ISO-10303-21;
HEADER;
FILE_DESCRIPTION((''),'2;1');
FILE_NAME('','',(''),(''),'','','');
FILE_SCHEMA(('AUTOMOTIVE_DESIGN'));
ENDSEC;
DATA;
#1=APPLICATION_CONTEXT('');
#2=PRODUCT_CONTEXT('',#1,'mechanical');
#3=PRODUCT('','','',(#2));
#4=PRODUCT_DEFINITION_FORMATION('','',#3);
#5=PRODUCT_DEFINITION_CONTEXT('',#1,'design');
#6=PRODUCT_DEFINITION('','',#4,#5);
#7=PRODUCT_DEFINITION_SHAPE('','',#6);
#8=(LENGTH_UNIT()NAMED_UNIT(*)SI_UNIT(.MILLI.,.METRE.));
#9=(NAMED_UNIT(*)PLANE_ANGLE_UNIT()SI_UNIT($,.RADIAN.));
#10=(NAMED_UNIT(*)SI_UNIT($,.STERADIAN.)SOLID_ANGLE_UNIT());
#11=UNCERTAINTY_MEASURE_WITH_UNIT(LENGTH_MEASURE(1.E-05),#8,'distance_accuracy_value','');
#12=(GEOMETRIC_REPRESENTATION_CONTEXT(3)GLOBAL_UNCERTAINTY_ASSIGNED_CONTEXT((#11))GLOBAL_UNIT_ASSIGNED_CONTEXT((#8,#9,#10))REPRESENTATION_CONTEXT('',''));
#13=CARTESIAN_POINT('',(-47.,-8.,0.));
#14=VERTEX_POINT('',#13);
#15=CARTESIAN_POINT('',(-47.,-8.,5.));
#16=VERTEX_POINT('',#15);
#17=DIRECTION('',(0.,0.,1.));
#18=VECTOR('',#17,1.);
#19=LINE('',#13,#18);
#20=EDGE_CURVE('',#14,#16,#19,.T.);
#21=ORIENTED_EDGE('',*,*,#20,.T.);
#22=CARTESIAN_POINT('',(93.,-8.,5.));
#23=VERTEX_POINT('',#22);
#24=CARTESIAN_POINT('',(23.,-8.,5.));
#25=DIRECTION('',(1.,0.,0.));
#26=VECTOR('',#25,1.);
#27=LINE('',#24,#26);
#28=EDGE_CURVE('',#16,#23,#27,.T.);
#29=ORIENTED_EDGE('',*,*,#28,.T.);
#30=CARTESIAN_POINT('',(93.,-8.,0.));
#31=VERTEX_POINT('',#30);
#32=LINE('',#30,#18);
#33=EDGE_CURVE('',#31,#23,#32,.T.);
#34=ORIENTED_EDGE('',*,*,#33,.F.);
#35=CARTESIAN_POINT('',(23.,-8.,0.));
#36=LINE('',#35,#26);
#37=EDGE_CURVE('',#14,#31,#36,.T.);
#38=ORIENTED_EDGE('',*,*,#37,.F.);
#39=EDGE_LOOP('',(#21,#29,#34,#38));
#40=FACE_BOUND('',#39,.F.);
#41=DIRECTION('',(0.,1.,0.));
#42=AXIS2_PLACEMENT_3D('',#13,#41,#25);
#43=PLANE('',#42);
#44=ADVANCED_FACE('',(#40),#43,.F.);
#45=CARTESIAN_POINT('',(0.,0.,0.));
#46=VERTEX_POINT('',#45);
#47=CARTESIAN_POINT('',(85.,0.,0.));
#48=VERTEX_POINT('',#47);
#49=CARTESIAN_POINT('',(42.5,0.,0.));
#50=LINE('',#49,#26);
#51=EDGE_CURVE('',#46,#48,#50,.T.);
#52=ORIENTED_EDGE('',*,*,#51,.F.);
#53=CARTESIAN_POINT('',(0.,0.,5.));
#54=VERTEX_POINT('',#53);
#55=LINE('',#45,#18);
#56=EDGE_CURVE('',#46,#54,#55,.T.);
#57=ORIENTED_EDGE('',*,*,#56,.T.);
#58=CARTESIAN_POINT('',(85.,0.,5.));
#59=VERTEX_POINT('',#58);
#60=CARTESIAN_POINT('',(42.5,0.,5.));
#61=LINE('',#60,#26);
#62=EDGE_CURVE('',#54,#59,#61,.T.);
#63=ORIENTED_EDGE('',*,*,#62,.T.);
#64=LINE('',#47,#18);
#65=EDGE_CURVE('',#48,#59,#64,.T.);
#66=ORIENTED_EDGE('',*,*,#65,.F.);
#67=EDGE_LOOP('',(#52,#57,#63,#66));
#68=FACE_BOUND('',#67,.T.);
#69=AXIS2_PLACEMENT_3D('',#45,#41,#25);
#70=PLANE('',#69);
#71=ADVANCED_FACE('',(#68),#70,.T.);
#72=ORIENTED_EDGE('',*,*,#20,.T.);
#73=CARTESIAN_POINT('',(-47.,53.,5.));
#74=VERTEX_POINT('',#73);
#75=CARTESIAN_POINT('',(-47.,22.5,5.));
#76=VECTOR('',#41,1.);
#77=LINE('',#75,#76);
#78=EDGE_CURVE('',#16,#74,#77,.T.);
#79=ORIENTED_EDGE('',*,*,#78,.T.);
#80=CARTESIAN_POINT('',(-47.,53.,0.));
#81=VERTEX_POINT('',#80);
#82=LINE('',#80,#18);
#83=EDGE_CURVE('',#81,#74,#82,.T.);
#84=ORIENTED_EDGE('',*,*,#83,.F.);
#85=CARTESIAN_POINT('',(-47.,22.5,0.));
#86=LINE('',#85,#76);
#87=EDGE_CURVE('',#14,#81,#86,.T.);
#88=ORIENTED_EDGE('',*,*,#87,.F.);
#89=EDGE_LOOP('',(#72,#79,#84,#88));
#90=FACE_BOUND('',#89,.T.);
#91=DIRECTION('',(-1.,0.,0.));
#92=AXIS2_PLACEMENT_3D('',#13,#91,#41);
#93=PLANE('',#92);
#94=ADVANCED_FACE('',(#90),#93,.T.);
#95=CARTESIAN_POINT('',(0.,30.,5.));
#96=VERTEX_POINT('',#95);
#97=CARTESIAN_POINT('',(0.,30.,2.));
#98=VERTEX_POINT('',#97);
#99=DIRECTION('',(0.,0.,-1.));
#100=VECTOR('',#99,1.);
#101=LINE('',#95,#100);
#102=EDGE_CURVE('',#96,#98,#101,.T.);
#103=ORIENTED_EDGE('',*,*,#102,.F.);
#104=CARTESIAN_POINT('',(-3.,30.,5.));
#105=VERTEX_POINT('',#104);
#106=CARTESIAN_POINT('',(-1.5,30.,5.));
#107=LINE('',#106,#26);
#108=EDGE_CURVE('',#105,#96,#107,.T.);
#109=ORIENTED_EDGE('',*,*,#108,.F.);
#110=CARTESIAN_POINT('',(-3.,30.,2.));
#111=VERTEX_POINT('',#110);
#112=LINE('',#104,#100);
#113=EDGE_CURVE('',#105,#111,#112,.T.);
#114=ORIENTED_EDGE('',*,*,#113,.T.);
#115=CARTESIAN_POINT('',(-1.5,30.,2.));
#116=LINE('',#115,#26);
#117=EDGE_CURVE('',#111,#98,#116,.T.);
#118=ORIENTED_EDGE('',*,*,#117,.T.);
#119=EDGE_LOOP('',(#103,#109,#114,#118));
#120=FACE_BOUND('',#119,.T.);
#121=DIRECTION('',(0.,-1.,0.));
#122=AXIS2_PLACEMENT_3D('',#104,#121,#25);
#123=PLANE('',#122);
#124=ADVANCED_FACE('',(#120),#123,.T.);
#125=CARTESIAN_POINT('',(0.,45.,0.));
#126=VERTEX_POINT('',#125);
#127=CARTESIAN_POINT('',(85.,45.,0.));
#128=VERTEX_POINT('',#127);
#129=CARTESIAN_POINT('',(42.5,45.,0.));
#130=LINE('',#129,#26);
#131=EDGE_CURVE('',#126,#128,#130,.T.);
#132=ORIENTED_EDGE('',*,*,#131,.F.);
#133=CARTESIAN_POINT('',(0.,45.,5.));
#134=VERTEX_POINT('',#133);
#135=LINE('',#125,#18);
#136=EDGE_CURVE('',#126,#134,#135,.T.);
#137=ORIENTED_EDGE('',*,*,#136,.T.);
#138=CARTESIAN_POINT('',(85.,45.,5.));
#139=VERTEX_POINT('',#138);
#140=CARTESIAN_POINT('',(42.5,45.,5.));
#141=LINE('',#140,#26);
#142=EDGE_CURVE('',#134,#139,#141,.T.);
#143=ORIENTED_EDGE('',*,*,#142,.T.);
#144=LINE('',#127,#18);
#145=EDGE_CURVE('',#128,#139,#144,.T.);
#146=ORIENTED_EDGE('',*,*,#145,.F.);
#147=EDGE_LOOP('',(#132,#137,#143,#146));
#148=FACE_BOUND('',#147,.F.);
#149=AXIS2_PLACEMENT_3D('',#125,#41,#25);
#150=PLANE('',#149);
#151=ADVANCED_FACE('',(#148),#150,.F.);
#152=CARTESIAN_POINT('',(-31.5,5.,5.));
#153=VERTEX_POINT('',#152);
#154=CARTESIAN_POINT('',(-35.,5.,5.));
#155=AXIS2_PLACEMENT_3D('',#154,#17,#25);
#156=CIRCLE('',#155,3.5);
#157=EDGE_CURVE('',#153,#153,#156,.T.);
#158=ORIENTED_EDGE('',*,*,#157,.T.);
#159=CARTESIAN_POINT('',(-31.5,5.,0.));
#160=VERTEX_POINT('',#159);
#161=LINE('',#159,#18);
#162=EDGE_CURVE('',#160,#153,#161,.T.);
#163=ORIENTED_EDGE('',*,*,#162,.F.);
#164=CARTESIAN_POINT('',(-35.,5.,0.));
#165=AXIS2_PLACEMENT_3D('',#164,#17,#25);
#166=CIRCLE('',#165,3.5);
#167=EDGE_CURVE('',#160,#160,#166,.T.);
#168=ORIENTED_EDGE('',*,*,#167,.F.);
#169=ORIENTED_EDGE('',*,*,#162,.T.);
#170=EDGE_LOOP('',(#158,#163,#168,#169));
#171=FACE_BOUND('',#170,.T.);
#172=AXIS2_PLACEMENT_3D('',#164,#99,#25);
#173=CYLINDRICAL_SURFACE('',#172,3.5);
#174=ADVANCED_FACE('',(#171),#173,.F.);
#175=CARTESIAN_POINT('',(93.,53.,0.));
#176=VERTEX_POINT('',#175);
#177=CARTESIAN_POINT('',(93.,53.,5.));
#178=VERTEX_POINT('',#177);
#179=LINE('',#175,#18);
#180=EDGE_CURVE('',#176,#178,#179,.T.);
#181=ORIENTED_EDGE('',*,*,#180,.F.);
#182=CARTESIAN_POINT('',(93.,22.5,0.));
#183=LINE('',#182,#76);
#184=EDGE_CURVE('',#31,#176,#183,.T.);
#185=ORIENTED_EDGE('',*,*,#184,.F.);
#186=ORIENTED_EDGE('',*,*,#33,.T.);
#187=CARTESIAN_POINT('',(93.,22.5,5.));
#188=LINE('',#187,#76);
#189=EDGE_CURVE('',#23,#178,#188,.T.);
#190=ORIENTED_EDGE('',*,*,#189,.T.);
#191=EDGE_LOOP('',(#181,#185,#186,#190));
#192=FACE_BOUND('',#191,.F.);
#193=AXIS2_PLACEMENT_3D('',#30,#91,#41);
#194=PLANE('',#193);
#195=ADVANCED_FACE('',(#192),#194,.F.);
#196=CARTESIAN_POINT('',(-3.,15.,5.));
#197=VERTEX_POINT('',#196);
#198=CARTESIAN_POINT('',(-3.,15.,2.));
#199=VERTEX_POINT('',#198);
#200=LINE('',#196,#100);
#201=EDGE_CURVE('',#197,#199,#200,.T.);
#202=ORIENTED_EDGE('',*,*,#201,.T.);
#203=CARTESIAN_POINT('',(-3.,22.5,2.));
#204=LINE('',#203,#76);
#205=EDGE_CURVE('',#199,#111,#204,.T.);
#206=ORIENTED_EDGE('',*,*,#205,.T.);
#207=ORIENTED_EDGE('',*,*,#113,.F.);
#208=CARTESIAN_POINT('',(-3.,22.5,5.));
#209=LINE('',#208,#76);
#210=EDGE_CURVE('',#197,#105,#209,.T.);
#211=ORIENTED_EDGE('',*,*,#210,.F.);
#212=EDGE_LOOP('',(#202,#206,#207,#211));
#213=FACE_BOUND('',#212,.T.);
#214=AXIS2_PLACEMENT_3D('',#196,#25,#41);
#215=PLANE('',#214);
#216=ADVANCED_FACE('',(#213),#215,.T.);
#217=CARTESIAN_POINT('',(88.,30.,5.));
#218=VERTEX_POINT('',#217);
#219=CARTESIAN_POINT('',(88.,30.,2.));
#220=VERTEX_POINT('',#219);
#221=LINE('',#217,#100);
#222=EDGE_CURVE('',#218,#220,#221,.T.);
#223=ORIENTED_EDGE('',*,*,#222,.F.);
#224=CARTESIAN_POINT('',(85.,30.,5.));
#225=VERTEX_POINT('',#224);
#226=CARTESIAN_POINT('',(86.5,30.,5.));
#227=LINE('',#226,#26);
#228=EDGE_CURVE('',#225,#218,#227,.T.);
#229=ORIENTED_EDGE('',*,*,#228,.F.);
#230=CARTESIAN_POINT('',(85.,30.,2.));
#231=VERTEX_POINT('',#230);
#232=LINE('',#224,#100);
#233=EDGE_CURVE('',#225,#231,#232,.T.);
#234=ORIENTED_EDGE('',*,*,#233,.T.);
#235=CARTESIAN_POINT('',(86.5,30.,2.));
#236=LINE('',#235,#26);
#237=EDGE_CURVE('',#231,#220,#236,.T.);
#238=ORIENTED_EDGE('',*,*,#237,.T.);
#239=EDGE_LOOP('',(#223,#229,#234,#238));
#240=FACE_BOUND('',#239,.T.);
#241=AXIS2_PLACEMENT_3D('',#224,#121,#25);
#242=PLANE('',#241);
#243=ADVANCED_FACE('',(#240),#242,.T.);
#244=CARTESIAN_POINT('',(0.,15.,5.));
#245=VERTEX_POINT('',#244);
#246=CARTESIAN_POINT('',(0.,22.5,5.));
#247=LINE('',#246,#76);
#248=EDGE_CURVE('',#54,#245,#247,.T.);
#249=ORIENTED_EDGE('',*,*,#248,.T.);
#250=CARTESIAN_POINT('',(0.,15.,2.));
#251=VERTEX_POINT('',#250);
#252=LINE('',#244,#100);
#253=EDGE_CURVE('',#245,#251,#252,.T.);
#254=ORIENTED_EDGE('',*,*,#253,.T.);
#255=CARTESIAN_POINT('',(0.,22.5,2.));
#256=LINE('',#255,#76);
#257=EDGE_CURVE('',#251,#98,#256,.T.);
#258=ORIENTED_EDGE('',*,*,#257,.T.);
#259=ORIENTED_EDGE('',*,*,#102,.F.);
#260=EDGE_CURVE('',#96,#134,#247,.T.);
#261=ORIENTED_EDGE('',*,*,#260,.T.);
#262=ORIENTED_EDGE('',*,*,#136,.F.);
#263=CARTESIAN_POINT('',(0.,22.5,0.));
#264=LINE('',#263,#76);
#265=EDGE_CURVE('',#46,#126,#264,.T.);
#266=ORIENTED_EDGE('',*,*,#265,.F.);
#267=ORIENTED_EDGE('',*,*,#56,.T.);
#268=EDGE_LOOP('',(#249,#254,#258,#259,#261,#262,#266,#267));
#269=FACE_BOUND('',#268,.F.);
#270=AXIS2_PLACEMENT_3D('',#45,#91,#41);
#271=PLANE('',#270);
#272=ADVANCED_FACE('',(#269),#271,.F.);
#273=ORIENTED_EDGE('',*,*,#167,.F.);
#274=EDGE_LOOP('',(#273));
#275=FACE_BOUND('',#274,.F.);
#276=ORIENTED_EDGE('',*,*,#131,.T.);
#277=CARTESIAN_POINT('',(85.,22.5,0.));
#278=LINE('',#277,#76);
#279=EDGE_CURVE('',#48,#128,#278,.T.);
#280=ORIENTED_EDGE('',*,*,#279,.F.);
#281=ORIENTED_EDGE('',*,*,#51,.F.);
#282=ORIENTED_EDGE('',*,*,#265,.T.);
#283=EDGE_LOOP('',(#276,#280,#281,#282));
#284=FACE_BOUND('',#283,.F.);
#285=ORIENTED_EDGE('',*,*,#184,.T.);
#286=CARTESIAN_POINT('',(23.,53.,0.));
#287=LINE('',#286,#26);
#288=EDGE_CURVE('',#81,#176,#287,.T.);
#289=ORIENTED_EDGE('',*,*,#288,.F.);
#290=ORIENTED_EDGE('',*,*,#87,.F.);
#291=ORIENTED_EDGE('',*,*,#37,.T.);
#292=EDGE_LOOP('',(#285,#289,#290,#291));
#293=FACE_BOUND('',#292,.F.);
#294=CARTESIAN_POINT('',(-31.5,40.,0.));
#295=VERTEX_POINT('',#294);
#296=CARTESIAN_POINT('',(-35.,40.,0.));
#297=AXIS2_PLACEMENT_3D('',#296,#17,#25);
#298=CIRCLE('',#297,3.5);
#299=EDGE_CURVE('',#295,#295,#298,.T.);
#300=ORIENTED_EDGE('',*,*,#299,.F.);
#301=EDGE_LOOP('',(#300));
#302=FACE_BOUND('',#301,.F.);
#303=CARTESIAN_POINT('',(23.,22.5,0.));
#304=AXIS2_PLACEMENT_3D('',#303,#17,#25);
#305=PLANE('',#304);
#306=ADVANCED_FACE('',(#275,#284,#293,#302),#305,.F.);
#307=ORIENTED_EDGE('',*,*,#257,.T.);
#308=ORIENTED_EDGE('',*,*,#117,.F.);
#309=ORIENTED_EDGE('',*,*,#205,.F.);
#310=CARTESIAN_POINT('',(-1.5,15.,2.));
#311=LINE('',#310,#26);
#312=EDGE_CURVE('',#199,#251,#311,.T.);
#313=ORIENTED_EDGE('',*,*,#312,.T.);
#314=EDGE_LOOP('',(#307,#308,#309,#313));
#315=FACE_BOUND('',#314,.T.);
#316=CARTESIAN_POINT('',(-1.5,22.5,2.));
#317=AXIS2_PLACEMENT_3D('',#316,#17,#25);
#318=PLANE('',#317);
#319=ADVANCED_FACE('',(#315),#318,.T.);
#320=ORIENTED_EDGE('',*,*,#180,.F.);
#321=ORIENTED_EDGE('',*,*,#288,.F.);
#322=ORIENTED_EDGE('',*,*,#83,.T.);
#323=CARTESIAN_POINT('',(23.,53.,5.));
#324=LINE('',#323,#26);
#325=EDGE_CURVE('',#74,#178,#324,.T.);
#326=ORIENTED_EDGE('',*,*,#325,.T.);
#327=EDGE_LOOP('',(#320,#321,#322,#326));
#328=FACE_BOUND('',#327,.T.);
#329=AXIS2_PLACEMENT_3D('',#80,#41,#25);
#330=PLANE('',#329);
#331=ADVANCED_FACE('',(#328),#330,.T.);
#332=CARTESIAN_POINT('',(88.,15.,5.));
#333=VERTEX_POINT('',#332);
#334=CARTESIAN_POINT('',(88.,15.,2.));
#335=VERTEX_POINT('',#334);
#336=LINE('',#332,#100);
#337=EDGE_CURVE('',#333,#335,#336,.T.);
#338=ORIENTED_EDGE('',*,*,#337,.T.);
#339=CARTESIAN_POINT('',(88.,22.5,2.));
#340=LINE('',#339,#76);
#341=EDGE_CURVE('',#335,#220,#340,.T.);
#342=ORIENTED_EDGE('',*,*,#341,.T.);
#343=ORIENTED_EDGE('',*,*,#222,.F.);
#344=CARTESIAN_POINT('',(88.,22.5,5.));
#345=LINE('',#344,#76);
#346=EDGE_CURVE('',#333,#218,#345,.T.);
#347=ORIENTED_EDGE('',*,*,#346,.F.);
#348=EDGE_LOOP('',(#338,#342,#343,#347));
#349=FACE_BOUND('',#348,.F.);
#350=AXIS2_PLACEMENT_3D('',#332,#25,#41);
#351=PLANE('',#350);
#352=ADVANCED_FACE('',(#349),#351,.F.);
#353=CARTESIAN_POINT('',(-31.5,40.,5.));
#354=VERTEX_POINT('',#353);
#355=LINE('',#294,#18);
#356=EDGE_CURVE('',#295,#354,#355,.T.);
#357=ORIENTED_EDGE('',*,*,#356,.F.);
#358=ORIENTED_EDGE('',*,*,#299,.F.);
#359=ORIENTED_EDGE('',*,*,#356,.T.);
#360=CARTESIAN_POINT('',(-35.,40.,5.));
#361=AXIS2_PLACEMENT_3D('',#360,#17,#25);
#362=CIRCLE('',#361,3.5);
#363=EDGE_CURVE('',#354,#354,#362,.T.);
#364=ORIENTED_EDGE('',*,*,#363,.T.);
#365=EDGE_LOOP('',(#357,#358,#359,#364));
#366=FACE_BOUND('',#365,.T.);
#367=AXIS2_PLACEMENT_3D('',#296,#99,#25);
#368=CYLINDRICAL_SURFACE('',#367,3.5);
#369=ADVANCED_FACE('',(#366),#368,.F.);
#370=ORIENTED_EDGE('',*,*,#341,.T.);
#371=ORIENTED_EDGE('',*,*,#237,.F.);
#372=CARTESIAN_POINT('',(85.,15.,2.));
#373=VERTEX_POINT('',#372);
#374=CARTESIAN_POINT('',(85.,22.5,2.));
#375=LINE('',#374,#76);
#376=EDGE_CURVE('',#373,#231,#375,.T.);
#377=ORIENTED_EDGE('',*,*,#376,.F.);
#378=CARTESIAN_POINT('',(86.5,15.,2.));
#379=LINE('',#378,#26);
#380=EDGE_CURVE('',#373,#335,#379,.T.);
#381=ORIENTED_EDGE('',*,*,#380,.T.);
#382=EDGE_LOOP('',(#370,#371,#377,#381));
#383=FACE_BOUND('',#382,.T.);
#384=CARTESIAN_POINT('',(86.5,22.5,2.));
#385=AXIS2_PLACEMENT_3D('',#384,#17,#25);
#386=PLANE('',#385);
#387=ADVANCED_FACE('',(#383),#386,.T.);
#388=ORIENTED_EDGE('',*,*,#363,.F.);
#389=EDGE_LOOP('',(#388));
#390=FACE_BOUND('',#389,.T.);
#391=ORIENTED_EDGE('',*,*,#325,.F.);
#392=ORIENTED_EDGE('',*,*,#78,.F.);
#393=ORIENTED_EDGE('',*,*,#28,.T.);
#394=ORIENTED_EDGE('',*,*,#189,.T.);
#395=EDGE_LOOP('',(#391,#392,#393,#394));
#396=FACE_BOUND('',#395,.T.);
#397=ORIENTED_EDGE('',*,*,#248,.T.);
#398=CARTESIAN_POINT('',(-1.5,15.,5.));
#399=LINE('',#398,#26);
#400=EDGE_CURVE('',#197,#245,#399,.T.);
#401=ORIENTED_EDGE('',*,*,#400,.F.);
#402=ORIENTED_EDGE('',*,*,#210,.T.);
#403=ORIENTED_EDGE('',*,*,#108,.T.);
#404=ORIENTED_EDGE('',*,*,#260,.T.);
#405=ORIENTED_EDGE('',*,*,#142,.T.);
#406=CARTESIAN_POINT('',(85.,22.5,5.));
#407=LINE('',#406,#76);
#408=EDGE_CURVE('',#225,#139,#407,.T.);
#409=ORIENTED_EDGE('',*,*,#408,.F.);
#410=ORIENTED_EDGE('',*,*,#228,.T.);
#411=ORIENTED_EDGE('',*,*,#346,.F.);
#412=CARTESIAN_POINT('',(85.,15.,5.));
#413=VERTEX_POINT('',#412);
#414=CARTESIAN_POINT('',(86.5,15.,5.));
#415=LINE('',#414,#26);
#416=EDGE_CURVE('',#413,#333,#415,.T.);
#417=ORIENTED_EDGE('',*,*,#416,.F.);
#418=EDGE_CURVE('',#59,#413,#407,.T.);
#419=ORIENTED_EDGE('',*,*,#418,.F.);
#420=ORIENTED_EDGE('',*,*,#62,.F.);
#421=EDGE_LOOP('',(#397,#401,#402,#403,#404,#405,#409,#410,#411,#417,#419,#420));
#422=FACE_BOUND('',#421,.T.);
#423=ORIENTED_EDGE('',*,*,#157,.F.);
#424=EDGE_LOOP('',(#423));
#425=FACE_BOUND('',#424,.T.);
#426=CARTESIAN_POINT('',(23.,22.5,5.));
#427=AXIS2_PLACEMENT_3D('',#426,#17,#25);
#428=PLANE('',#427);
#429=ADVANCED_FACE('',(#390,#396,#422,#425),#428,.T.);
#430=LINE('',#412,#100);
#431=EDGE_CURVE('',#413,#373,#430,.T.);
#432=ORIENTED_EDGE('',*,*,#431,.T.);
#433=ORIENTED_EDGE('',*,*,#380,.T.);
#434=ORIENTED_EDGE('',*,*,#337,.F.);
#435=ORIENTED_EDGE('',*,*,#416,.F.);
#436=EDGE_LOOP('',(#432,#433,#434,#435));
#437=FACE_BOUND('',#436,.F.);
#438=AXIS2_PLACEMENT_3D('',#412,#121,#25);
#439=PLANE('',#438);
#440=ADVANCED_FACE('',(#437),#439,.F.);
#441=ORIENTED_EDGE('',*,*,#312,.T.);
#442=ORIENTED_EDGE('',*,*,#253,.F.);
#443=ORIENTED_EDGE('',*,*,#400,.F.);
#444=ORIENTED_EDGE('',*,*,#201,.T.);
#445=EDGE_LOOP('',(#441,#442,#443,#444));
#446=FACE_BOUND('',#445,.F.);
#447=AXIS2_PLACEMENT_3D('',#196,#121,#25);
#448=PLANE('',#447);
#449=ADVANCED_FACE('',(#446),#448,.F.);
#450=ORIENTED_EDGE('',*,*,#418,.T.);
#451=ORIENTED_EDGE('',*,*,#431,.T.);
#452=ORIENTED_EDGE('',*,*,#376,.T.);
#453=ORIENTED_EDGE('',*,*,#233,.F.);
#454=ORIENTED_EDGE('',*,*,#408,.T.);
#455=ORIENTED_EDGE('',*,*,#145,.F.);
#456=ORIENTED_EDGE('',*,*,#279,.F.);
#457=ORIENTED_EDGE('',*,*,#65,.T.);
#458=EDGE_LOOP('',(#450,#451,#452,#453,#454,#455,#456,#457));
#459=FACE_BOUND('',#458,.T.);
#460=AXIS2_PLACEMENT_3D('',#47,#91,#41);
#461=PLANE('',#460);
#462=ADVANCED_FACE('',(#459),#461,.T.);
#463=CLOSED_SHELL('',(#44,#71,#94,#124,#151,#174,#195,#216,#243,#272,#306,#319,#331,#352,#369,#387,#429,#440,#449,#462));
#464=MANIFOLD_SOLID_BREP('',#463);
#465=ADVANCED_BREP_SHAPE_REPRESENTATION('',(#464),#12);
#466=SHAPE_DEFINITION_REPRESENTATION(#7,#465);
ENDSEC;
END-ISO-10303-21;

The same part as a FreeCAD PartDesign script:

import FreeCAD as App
import Part
import Sketcher
from FreeCAD import Vector

doc = App.newDocument("Part")
body = doc.addObject("PartDesign::Body", "Body")

# Sketch on XY plane
sketch1 = doc.addObject("Sketcher::SketchObject", "Sketch")
body.addObject(sketch1)
sketch1.AttachmentSupport = (doc.XY_Plane, [""])
sketch1.MapMode = "FlatFace"
sketch1.addGeometry([
    Part.LineSegment(Vector(-47, 53, 0), Vector(-47, -8, 0)),  # 0
    Part.LineSegment(Vector(-47, -8, 0), Vector(93, -8, 0)),  # 1
    Part.LineSegment(Vector(93, -8, 0), Vector(93, 53, 0)),  # 2
    Part.LineSegment(Vector(93, 53, 0), Vector(-47, 53, 0)),  # 3
    Part.Circle(Vector(-35, 5, 0), Vector(0, 0, 1), 3.5),  # 4
    Part.Circle(Vector(-35, 40, 0), Vector(0, 0, 1), 3.5),  # 5
    Part.LineSegment(Vector(85, 0, 0), Vector(0, 0, 0)),  # 6
    Part.LineSegment(Vector(0, 0, 0), Vector(0, 45, 0)),  # 7
    Part.LineSegment(Vector(0, 45, 0), Vector(85, 45, 0)),  # 8
    Part.LineSegment(Vector(85, 45, 0), Vector(85, 0, 0)),  # 9
], False)
sketch1.addConstraint([
    Sketcher.Constraint("Coincident", 0, 2, 1, 1),
    Sketcher.Constraint("Coincident", 1, 2, 2, 1),
    Sketcher.Constraint("Coincident", 2, 2, 3, 1),
    Sketcher.Constraint("Coincident", 3, 2, 0, 1),
    Sketcher.Constraint("Coincident", 6, 2, 7, 1),
    Sketcher.Constraint("Coincident", 7, 2, 8, 1),
    Sketcher.Constraint("Coincident", 8, 2, 9, 1),
    Sketcher.Constraint("Coincident", 9, 2, 6, 1),
    Sketcher.Constraint("Vertical", 0),
    Sketcher.Constraint("Horizontal", 1),
    Sketcher.Constraint("Vertical", 2),
    Sketcher.Constraint("Horizontal", 3),
    Sketcher.Constraint("Horizontal", 6),
    Sketcher.Constraint("Vertical", 7),
    Sketcher.Constraint("Horizontal", 8),
    Sketcher.Constraint("Vertical", 9),
    Sketcher.Constraint("Coincident", 6, 2, -1, 1),
    Sketcher.Constraint("Equal", 4, 5),
    Sketcher.Constraint("Vertical", 4, 3, 5, 3),
    Sketcher.Constraint("Diameter", 4, 7.0),
    Sketcher.Constraint("DistanceX", 1, 1, 1, 2, 140.0),
    Sketcher.Constraint("DistanceX", 6, 2, 6, 1, 85.0),
    Sketcher.Constraint("DistanceY", 0, 2, 0, 1, 61.0),
    Sketcher.Constraint("DistanceY", 7, 1, 7, 2, 45.0),
    Sketcher.Constraint("DistanceX", 4, 3, -1, 1, 35.0),
    Sketcher.Constraint("DistanceY", -1, 1, 4, 3, 5.0),
    Sketcher.Constraint("DistanceY", -1, 1, 5, 3, 40.0),
    Sketcher.Constraint("DistanceX", 0, 2, -1, 1, 47.0),
    Sketcher.Constraint("DistanceY", 0, 2, -1, 1, 8.0),
])
pad1 = doc.addObject("PartDesign::Pad", "Pad")
body.addObject(pad1)
pad1.Profile = sketch1
pad1.Length = 5

# Sketch on XY plane
sketch2 = doc.addObject("Sketcher::SketchObject", "Sketch001")
body.addObject(sketch2)
sketch2.AttachmentSupport = (doc.XY_Plane, [""])
sketch2.MapMode = "FlatFace"
sketch2.AttachmentOffset = App.Placement(Vector(0, 0, 5), App.Rotation())
sketch2.addGeometry([
    Part.LineSegment(Vector(-3, 30, 0), Vector(-3, 15, 0)),  # 0
    Part.LineSegment(Vector(-3, 15, 0), Vector(0, 15, 0)),  # 1
    Part.LineSegment(Vector(0, 15, 0), Vector(0, 30, 0)),  # 2
    Part.LineSegment(Vector(0, 30, 0), Vector(-3, 30, 0)),  # 3
    Part.LineSegment(Vector(85, 30, 0), Vector(85, 15, 0)),  # 4
    Part.LineSegment(Vector(85, 15, 0), Vector(88, 15, 0)),  # 5
    Part.LineSegment(Vector(88, 15, 0), Vector(88, 30, 0)),  # 6
    Part.LineSegment(Vector(88, 30, 0), Vector(85, 30, 0)),  # 7
], False)
sketch2.addConstraint([
    Sketcher.Constraint("Coincident", 0, 2, 1, 1),
    Sketcher.Constraint("Coincident", 1, 2, 2, 1),
    Sketcher.Constraint("Coincident", 2, 2, 3, 1),
    Sketcher.Constraint("Coincident", 3, 2, 0, 1),
    Sketcher.Constraint("Coincident", 4, 2, 5, 1),
    Sketcher.Constraint("Coincident", 5, 2, 6, 1),
    Sketcher.Constraint("Coincident", 6, 2, 7, 1),
    Sketcher.Constraint("Coincident", 7, 2, 4, 1),
    Sketcher.Constraint("Vertical", 0),
    Sketcher.Constraint("Horizontal", 1),
    Sketcher.Constraint("Vertical", 2),
    Sketcher.Constraint("Horizontal", 3),
    Sketcher.Constraint("Vertical", 4),
    Sketcher.Constraint("Horizontal", 5),
    Sketcher.Constraint("Vertical", 6),
    Sketcher.Constraint("Horizontal", 7),
    Sketcher.Constraint("PointOnObject", 1, 2, -2),
    Sketcher.Constraint("Horizontal", 1, 2, 4, 2),
    Sketcher.Constraint("Horizontal", 3, 2, 6, 2),
    Sketcher.Constraint("Equal", 3, 5),
    Sketcher.Constraint("DistanceX", 1, 1, 1, 2, 3.0),
    Sketcher.Constraint("DistanceY", 0, 2, 0, 1, 15.0),
    Sketcher.Constraint("DistanceY", -1, 1, 0, 2, 15.0),
    Sketcher.Constraint("DistanceX", -1, 1, 4, 2, 85.0),
])
pocket1 = doc.addObject("PartDesign::Pocket", "Pocket")
body.addObject(pocket1)
pocket1.Profile = sketch2
pocket1.Length = 3

doc.recompute()
